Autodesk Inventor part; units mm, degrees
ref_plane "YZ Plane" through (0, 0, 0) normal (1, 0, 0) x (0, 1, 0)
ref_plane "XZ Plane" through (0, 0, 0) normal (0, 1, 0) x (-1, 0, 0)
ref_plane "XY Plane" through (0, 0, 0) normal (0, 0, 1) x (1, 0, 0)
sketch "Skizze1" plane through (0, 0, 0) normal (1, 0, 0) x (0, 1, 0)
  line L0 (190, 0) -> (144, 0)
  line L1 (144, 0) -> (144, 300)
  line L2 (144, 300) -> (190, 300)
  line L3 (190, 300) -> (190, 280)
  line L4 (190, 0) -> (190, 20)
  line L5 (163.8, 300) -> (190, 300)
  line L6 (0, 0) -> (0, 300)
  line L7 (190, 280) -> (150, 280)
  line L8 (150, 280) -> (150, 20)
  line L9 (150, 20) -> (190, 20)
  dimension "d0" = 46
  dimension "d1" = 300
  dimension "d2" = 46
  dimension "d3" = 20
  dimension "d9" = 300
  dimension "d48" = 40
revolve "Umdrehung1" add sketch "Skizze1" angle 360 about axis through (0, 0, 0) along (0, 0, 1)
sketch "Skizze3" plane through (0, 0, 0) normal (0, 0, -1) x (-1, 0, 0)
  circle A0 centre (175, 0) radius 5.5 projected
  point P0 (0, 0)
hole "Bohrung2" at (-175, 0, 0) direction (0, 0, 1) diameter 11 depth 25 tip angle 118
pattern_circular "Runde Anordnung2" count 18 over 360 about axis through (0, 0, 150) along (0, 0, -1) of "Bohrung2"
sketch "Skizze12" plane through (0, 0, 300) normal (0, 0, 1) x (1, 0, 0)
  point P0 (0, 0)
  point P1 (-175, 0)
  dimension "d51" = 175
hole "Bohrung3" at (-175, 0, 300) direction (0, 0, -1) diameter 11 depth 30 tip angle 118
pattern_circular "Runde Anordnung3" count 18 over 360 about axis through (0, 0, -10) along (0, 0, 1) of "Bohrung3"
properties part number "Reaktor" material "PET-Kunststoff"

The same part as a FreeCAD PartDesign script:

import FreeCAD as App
import Part
import Sketcher
from FreeCAD import Vector
Q = App.Units.Quantity

doc = App.newDocument("Part")
params = doc.addObject("Spreadsheet::Sheet", "Params")
for row, (alias, value) in enumerate([
    ("sketch1_width", "46 mm"),
    ("sketch1_width2", "40 mm"),
    ("sketch1_height", "20 mm"),
    ("sketch1_height2", "300 mm"),
    ("revolution_angle", "360 deg"),
    ("sketch2_diameter", "11 mm"),
    ("hole_diameter", "11 mm"),
    ("hole_depth", "25 mm"),
    ("sketch3_diameter", "11 mm"),
    ("hole2_diameter", "11 mm"),
    ("hole2_depth", "30 mm"),
], start=1):
    params.set(f"A{row}", alias)
    params.set(f"B{row}", "=" + value)
    params.setAlias(f"B{row}", alias)

body = doc.addObject("PartDesign::Body", "Body")

sketch1 = body.newObject("Sketcher::SketchObject", "Sketch")
sketch1.AttachmentSupport = (doc.getObject("YZ_Plane"), [""])
sketch1.MapMode = "FlatFace"
sketch1.addGeometry(Part.LineSegment(Vector(144, 0, 0), Vector(190, 0, 0)), False)
sketch1.addGeometry(Part.LineSegment(Vector(190, 0, 0), Vector(190, 20, 0)), False)
sketch1.addGeometry(Part.LineSegment(Vector(190, 20, 0), Vector(150, 20, 0)), False)
sketch1.addGeometry(Part.LineSegment(Vector(150, 20, 0), Vector(150, 280, 0)), False)
sketch1.addGeometry(Part.LineSegment(Vector(150, 280, 0), Vector(190, 280, 0)), False)
sketch1.addGeometry(Part.LineSegment(Vector(190, 280, 0), Vector(190, 300, 0)), False)
sketch1.addGeometry(Part.LineSegment(Vector(190, 300, 0), Vector(144, 300, 0)), False)
sketch1.addGeometry(Part.LineSegment(Vector(144, 300, 0), Vector(144, 0, 0)), False)
sketch1.addConstraint(Sketcher.Constraint("Coincident", 0, 2, 1, 1))
sketch1.addConstraint(Sketcher.Constraint("Coincident", 1, 2, 2, 1))
sketch1.addConstraint(Sketcher.Constraint("Coincident", 2, 2, 3, 1))
sketch1.addConstraint(Sketcher.Constraint("Coincident", 3, 2, 4, 1))
sketch1.addConstraint(Sketcher.Constraint("Coincident", 4, 2, 5, 1))
sketch1.addConstraint(Sketcher.Constraint("Coincident", 5, 2, 6, 1))
sketch1.addConstraint(Sketcher.Constraint("Coincident", 6, 2, 7, 1))
sketch1.addConstraint(Sketcher.Constraint("Coincident", 7, 2, 0, 1))
sketch1.addConstraint(Sketcher.Constraint("Horizontal", 0))
sketch1.addConstraint(Sketcher.Constraint("Vertical", 1))
sketch1.addConstraint(Sketcher.Constraint("Horizontal", 2))
sketch1.addConstraint(Sketcher.Constraint("Vertical", 3))
sketch1.addConstraint(Sketcher.Constraint("Horizontal", 4))
sketch1.addConstraint(Sketcher.Constraint("Vertical", 5))
sketch1.addConstraint(Sketcher.Constraint("Horizontal", 6))
sketch1.addConstraint(Sketcher.Constraint("Vertical", 7))
sketch1.addConstraint(Sketcher.Constraint("PointOnObject", 0, 2, -1))
sketch1.addConstraint(Sketcher.Constraint("Vertical", 1, 2, 4, 2))
sketch1.addConstraint(Sketcher.Constraint("Equal", 1, 5))
sketch1.addConstraint(Sketcher.Constraint("DistanceX", 0, 1, 0, 2, Q("46 mm")))
sketch1.addConstraint(Sketcher.Constraint("DistanceX", 2, 2, 2, 1, Q("40 mm")))
sketch1.addConstraint(Sketcher.Constraint("DistanceY", 1, 1, 1, 2, Q("20 mm")))
sketch1.addConstraint(Sketcher.Constraint("DistanceY", 7, 2, 7, 1, Q("300 mm")))
sketch1.addConstraint(Sketcher.Constraint("DistanceX", -1, 1, 0, 2, Q("190 mm")))
sketch1.setExpression("Constraints[19]", "Params.sketch1_width")
sketch1.setExpression("Constraints[20]", "Params.sketch1_width2")
sketch1.setExpression("Constraints[21]", "Params.sketch1_height")
sketch1.setExpression("Constraints[22]", "Params.sketch1_height2")
revolution = body.newObject("PartDesign::Revolution", "Revolution")
revolution.Profile = sketch1
revolution.ReferenceAxis = (sketch1, ["V_Axis"])
revolution.setExpression("Angle", "Params.revolution_angle")

sketch2 = body.newObject("Sketcher::SketchObject", "Sketch001")
sketch2.AttachmentSupport = (doc.getObject("XY_Plane"), [""])
sketch2.MapMode = "FlatFace"
sketch2.addGeometry(Part.Circle(Vector(-175, 0, 0), Vector(0, 0, 1), 5.5), False)
sketch2.addConstraint(Sketcher.Constraint("PointOnObject", 0, 3, -1))
sketch2.addConstraint(Sketcher.Constraint("Diameter", 0, Q("11 mm")))
sketch2.addConstraint(Sketcher.Constraint("DistanceX", 0, 3, -1, 1, Q("175 mm")))
sketch2.setExpression("Constraints[1]", "Params.sketch2_diameter")
doc.recompute()
hole = body.newObject("PartDesign::Hole", "Hole")
hole.Profile = sketch2
hole.ThreadType = "None"
hole.setExpression("Diameter", "Params.hole_diameter")
hole.DepthType = "Dimension"
hole.setExpression("Depth", "Params.hole_depth")
hole.DrillPoint = "Angled"
hole.DrillPointAngle = 118
hole.Reversed = True
doc.recompute()

polarpattern = body.newObject("PartDesign::PolarPattern", "PolarPattern")
polarpattern.Originals = [hole]
polarpattern.Axis = (doc.getObject("Z_Axis"), [""])
polarpattern.Angle = 360
polarpattern.Occurrences = 18
body.Tip = polarpattern

sketch3 = body.newObject("Sketcher::SketchObject", "Sketch002")
sketch3.AttachmentSupport = (doc.getObject("XY_Plane"), [""])
sketch3.MapMode = "FlatFace"
sketch3.AttachmentOffset = App.Placement(Vector(0, 0, 300), App.Rotation())
sketch3.addGeometry(Part.Circle(Vector(-175, 0, 0), Vector(0, 0, 1), 5.5), False)
sketch3.addConstraint(Sketcher.Constraint("PointOnObject", 0, 3, -1))
sketch3.addConstraint(Sketcher.Constraint("Diameter", 0, Q("11 mm")))
sketch3.addConstraint(Sketcher.Constraint("DistanceX", 0, 3, -1, 1, Q("175 mm")))
sketch3.setExpression("Constraints[1]", "Params.sketch3_diameter")
doc.recompute()
hole2 = body.newObject("PartDesign::Hole", "Hole001")
hole2.Profile = sketch3
hole2.ThreadType = "None"
hole2.setExpression("Diameter", "Params.hole2_diameter")
hole2.DepthType = "Dimension"
hole2.setExpression("Depth", "Params.hole2_depth")
hole2.DrillPoint = "Angled"
hole2.DrillPointAngle = 118
doc.recompute()

polarpattern2 = body.newObject("PartDesign::PolarPattern", "PolarPattern001")
polarpattern2.Originals = [hole2]
polarpattern2.Axis = (doc.getObject("Z_Axis"), [""])
polarpattern2.Angle = 360
polarpattern2.Occurrences = 18
body.Tip = polarpattern2

doc.recompute()
